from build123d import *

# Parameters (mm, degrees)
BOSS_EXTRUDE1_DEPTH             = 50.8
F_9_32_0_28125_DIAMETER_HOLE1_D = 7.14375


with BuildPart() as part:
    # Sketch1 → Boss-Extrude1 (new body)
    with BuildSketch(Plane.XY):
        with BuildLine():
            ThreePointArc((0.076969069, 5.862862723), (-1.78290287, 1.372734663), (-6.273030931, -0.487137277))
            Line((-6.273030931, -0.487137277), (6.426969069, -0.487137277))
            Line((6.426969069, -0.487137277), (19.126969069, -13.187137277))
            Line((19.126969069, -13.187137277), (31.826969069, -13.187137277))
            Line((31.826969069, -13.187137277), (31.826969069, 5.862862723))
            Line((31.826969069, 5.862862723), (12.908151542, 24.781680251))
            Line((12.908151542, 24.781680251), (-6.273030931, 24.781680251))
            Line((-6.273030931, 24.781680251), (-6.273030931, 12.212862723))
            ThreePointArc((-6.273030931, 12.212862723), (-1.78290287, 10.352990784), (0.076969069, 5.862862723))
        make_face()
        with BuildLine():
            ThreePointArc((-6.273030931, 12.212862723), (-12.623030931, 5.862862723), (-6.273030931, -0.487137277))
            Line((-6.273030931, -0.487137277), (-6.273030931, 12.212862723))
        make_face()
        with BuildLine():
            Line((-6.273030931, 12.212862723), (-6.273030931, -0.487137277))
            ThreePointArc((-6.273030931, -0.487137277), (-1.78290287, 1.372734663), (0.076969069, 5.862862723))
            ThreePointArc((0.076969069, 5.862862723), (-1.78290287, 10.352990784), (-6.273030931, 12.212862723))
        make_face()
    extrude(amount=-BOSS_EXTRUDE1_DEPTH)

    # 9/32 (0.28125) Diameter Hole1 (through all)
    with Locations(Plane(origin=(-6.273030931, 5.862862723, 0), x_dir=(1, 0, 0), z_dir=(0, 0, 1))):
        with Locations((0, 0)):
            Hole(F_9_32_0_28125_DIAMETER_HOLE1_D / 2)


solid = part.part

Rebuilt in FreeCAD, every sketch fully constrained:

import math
import FreeCAD as App
import Part
import Sketcher
Q = App.Units.Quantity

doc = App.newDocument("Part")
body = doc.addObject("PartDesign::Body", "Body")

sketch1 = doc.addObject("Sketcher::SketchObject", "Sketch")
body.addObject(sketch1)
sketch1.AttachmentSupport = (doc.XY_Plane, [""])
sketch1.MapMode = "FlatFace"
sketch1.addGeometry([
    Part.LineSegment(App.Vector(13, 25, 0), App.Vector(-6, 25, 0)),
    Part.LineSegment(App.Vector(-6, 25, 0), App.Vector(-6, 12, 0)),
    Part.ArcOfCircle(Part.Circle(App.Vector(-6, 6, 0), App.Vector(0, 0, 1), 6), math.radians(90), math.radians(270)),
    Part.LineSegment(App.Vector(-6, 0, 0), App.Vector(6, 0, 0)),
    Part.LineSegment(App.Vector(6, 0, 0), App.Vector(19, -13, 0)),
    Part.LineSegment(App.Vector(19, -13, 0), App.Vector(32, -13, 0)),
    Part.LineSegment(App.Vector(32, -13, 0), App.Vector(32, 6, 0)),
    Part.LineSegment(App.Vector(32, 6, 0), App.Vector(13, 25, 0)),
], False)
sketch1.addConstraint([
    Sketcher.Constraint("Coincident", 0, 2, 1, 1),
    Sketcher.Constraint("Coincident", 1, 2, 2, 1),
    Sketcher.Constraint("Tangent", 2, 2, 3, 1),
    Sketcher.Constraint("Coincident", 3, 2, 4, 1),
    Sketcher.Constraint("Coincident", 4, 2, 5, 1),
    Sketcher.Constraint("Coincident", 5, 2, 6, 1),
    Sketcher.Constraint("Coincident", 6, 2, 7, 1),
    Sketcher.Constraint("Coincident", 7, 2, 0, 1),
    Sketcher.Constraint("Horizontal", 0),
    Sketcher.Constraint("Vertical", 1),
    Sketcher.Constraint("Horizontal", 3),
    Sketcher.Constraint("Horizontal", 5),
    Sketcher.Constraint("Vertical", 6),
    Sketcher.Constraint("Parallel", 4, 7),
    Sketcher.Constraint("Horizontal", 2, 3, 6, 2),
    Sketcher.Constraint("Vertical", 2, 3, 0, 2),
    Sketcher.Constraint("Equal", 3, 5),
    Sketcher.Constraint("Radius", 2, Q("0.25 in")),
    Sketcher.Constraint("DistanceX", 3, 1, 3, 2, Q("0.5 in")),
    Sketcher.Constraint("Angle", 4, Q("-45 deg")),
    Sketcher.Constraint("DistanceX", 2, 2, 4, 2, Q("1 in")),
    Sketcher.Constraint("Distance", 7, 26.755248),
    Sketcher.Constraint("DistanceX", 2, 3, -1, 1, 6.273031),
    Sketcher.Constraint("DistanceY", -1, 1, 0, 2, 24.78168),
])
pad1 = doc.addObject("PartDesign::Pad", "Pad")
body.addObject(pad1)
pad1.Profile = sketch1
pad1.Length = Q("2 in")
pad1.Reversed = True

sketch2 = doc.addObject("Sketcher::SketchObject", "Sketch001")
body.addObject(sketch2)
sketch2.AttachmentSupport = (doc.XY_Plane, [""])
sketch2.MapMode = "FlatFace"
sketch2.addGeometry(Part.Circle(App.Vector(-6.3, 5.9, 0), App.Vector(0, 0, 1), 3.6), False)
sketch2.addConstraint([
    Sketcher.Constraint("Diameter", 0, Q("0.28125 in")),
    Sketcher.Constraint("DistanceX", 0, 3, -1, 1, 6.273031),
    Sketcher.Constraint("DistanceY", -1, 1, 0, 3, 5.862863),
])
doc.recompute()
hole = doc.addObject("PartDesign::Hole", "Hole")
body.addObject(hole)
hole.Profile = sketch2
hole.ThreadType = "None"
hole.Diameter = Q("0.28125 in")
hole.DepthType = "ThroughAll"

doc.recompute()
